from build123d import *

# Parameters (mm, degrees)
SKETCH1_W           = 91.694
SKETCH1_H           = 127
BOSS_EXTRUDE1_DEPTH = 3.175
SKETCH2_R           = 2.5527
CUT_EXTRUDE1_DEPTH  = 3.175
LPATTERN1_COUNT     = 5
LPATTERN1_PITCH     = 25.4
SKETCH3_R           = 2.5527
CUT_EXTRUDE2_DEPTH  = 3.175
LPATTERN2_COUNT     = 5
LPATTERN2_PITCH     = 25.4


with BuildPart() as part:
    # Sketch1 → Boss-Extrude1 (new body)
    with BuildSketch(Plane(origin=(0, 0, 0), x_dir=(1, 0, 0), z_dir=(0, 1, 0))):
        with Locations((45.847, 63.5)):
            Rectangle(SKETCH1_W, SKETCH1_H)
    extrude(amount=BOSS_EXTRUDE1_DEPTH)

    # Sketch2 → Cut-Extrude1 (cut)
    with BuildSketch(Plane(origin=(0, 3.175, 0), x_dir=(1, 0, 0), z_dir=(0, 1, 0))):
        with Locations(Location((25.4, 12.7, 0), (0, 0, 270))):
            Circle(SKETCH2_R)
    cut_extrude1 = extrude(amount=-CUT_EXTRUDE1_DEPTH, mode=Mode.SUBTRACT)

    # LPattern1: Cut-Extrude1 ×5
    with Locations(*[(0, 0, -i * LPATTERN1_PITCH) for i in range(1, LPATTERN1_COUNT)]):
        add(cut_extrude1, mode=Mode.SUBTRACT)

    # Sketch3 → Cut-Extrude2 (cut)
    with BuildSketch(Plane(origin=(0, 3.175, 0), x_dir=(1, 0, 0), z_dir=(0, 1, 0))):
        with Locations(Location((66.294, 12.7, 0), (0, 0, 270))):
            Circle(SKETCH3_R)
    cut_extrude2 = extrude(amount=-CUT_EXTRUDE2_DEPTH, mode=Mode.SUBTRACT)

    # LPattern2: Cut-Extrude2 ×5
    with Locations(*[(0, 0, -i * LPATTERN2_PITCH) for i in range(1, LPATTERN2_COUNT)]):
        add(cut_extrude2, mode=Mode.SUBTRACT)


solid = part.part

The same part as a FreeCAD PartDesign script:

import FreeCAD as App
import Part
import Sketcher

V = App.Vector
Q = App.Units.Quantity

doc = App.newDocument("Part")
body = doc.addObject("PartDesign::Body", "Body")

# Sketch on XZ plane
sketch1 = body.newObject("Sketcher::SketchObject", "Sketch")
sketch1.AttachmentSupport = (doc.getObject("XZ_Plane"), [""])
sketch1.MapMode = "FlatFace"
sketch1.addGeometry([
    Part.LineSegment(V(0, -127, 0), V(0, 0, 0)),
    Part.LineSegment(V(0, 0, 0), V(91.694, 0, 0)),
    Part.LineSegment(V(91.694, 0, 0), V(91.694, -127, 0)),
    Part.LineSegment(V(91.694, -127, 0), V(0, -127, 0)),
], False)
sketch1.addConstraint([
    Sketcher.Constraint("Coincident", 0, 2, 1, 1),
    Sketcher.Constraint("Coincident", 1, 2, 2, 1),
    Sketcher.Constraint("Coincident", 2, 2, 3, 1),
    Sketcher.Constraint("Coincident", 3, 2, 0, 1),
    Sketcher.Constraint("Vertical", 0),
    Sketcher.Constraint("Horizontal", 1),
    Sketcher.Constraint("Vertical", 2),
    Sketcher.Constraint("Horizontal", 3),
    Sketcher.Constraint("Coincident", 0, 2, -1, 1),
    Sketcher.Constraint("DistanceY", 0, 1, 0, 2, Q("5 in")),
    Sketcher.Constraint("DistanceX", 1, 1, 1, 2, Q("3.61 in")),
])
pad1 = body.newObject("PartDesign::Pad", "Pad")
pad1.Profile = sketch1
pad1.Length = Q("0.125 in")
pad1.Reversed = True

# Sketch on XZ plane
sketch2 = body.newObject("Sketcher::SketchObject", "Sketch001")
sketch2.AttachmentSupport = (doc.getObject("XZ_Plane"), [""])
sketch2.MapMode = "FlatFace"
sketch2.AttachmentOffset = App.Placement(V(0, 0, -0.125 * 25.4), App.Rotation())
sketch2.addGeometry(Part.Circle(V(25.4, -12.7, 0), V(0, 0, 1), 2.5527), False)
sketch2.addConstraint([
    Sketcher.Constraint("Diameter", 0, Q("0.201 in")),
    Sketcher.Constraint("DistanceX", -1, 1, 0, 3, Q("1 in")),
    Sketcher.Constraint("DistanceY", 0, 3, -1, 1, Q("0.5 in")),
])
pocket1 = body.newObject("PartDesign::Pocket", "Pocket")
pocket1.Profile = sketch2
pocket1.Length = Q("0.125 in")
pocket1.Reversed = True
doc.recompute()

linearpattern = body.newObject("PartDesign::LinearPattern", "LinearPattern")
linearpattern.Originals = [pocket1]
linearpattern.Direction = (doc.getObject("Z_Axis"), [""])
linearpattern.Mode = "offset"
linearpattern.Offset = Q("1 in")
linearpattern.Occurrences = 5
linearpattern.Reversed = True
body.Tip = linearpattern

# Sketch on XZ plane
sketch3 = body.newObject("Sketcher::SketchObject", "Sketch002")
sketch3.AttachmentSupport = (doc.getObject("XZ_Plane"), [""])
sketch3.MapMode = "FlatFace"
sketch3.AttachmentOffset = App.Placement(V(0, 0, -0.125 * 25.4), App.Rotation())
sketch3.addGeometry(Part.Circle(V(66.294, -12.7, 0), V(0, 0, 1), 2.5527), False)
sketch3.addConstraint([
    Sketcher.Constraint("Diameter", 0, Q("0.201 in")),
    Sketcher.Constraint("DistanceY", 0, 3, -1, 1, Q("0.5 in")),
    Sketcher.Constraint("DistanceX", -1, 1, 0, 3, Q("2.61 in")),
])
pocket2 = body.newObject("PartDesign::Pocket", "Pocket001")
pocket2.Profile = sketch3
pocket2.Length = Q("0.125 in")
pocket2.Reversed = True
doc.recompute()

linearpattern2 = body.newObject("PartDesign::LinearPattern", "LinearPattern001")
linearpattern2.Originals = [pocket2]
linearpattern2.Direction = (doc.getObject("Z_Axis"), [""])
linearpattern2.Mode = "offset"
linearpattern2.Offset = Q("1 in")
linearpattern2.Occurrences = 5
linearpattern2.Reversed = True
body.Tip = linearpattern2

doc.recompute()
